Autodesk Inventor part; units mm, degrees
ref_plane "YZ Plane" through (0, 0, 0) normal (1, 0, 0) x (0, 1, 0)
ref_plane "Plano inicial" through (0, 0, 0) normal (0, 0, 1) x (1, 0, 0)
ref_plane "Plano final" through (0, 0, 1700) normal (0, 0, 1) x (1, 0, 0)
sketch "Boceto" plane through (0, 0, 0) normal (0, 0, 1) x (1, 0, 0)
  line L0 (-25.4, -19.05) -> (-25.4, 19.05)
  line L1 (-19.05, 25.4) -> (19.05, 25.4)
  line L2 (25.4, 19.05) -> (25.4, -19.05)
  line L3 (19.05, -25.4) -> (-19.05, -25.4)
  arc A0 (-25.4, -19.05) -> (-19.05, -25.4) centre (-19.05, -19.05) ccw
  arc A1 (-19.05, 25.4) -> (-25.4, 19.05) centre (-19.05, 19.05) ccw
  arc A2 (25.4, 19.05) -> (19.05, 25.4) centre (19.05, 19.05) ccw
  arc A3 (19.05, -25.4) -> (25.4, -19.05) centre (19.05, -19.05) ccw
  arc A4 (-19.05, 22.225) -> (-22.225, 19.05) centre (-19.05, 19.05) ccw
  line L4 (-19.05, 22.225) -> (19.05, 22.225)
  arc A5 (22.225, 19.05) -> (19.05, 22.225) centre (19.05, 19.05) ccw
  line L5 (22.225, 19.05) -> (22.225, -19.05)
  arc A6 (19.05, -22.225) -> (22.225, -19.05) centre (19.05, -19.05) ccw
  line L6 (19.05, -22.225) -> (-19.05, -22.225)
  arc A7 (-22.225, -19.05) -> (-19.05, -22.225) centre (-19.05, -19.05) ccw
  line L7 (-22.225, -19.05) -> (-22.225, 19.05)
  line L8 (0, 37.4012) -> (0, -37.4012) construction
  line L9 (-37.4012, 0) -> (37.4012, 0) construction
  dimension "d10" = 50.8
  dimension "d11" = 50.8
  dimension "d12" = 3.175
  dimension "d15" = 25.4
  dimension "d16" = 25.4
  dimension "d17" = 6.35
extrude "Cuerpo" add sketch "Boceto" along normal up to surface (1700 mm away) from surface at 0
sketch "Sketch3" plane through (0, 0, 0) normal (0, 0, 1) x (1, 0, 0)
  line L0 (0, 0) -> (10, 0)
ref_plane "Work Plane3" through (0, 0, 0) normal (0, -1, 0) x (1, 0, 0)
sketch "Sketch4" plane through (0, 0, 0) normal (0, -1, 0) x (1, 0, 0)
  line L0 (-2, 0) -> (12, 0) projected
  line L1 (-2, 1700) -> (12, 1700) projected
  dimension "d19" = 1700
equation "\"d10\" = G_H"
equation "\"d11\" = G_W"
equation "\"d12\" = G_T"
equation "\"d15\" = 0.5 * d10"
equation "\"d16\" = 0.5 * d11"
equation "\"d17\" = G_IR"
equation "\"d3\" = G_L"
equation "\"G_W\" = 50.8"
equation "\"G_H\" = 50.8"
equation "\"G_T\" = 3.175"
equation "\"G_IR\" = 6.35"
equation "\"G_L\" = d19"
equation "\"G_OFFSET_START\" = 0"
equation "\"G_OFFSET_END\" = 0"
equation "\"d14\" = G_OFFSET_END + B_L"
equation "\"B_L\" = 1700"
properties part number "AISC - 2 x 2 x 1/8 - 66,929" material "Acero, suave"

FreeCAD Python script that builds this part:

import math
import FreeCAD as App
import Part
import Sketcher
Q = App.Units.Quantity

doc = App.newDocument("Part")
body = doc.addObject("PartDesign::Body", "Body")

sketch1 = body.newObject("Sketcher::SketchObject", "Sketch")
sketch1.AttachmentSupport = (doc.getObject("XY_Plane"), [""])
sketch1.MapMode = "FlatFace"
sketch1.addGeometry([
    Part.LineSegment(App.Vector(-25.4, 19.1, 0), App.Vector(-25.4, -19.1, 0)),
    Part.ArcOfCircle(Part.Circle(App.Vector(-19.1, -19.1, 0), App.Vector(0, 0, 1), 6.3), math.radians(180), math.radians(270)),
    Part.LineSegment(App.Vector(-19.1, -25.4, 0), App.Vector(19.1, -25.4, 0)),
    Part.ArcOfCircle(Part.Circle(App.Vector(19.1, -19.1, 0), App.Vector(0, 0, 1), 6.3), math.radians(-90), math.radians(0)),
    Part.LineSegment(App.Vector(25.4, -19.1, 0), App.Vector(25.4, 19.1, 0)),
    Part.ArcOfCircle(Part.Circle(App.Vector(19.1, 19.1, 0), App.Vector(0, 0, 1), 6.3), math.radians(0), math.radians(90)),
    Part.LineSegment(App.Vector(19.1, 25.4, 0), App.Vector(-19.1, 25.4, 0)),
    Part.ArcOfCircle(Part.Circle(App.Vector(-19.1, 19.1, 0), App.Vector(0, 0, 1), 6.3), math.radians(90), math.radians(180)),
    Part.ArcOfCircle(Part.Circle(App.Vector(-19.1, 19.1, 0), App.Vector(0, 0, 1), 3.2), math.radians(90), math.radians(180)),
    Part.LineSegment(App.Vector(-19.1, 22.2, 0), App.Vector(19.1, 22.2, 0)),
    Part.ArcOfCircle(Part.Circle(App.Vector(19.1, 19.1, 0), App.Vector(0, 0, 1), 3.2), math.radians(0), math.radians(90)),
    Part.LineSegment(App.Vector(22.2, 19.1, 0), App.Vector(22.2, -19.1, 0)),
    Part.ArcOfCircle(Part.Circle(App.Vector(19.1, -19.1, 0), App.Vector(0, 0, 1), 3.2), math.radians(-90), math.radians(0)),
    Part.LineSegment(App.Vector(19.1, -22.2, 0), App.Vector(-19.1, -22.2, 0)),
    Part.ArcOfCircle(Part.Circle(App.Vector(-19.1, -19.1, 0), App.Vector(0, 0, 1), 3.2), math.radians(180), math.radians(270)),
    Part.LineSegment(App.Vector(-22.2, -19.1, 0), App.Vector(-22.2, 19.1, 0)),
], False)
sketch1.addConstraint([
    Sketcher.Constraint("Tangent", 0, 2, 1, 1),
    Sketcher.Constraint("Tangent", 1, 2, 2, 1),
    Sketcher.Constraint("Tangent", 2, 2, 3, 1),
    Sketcher.Constraint("Tangent", 3, 2, 4, 1),
    Sketcher.Constraint("Tangent", 4, 2, 5, 1),
    Sketcher.Constraint("Tangent", 5, 2, 6, 1),
    Sketcher.Constraint("Tangent", 6, 2, 7, 1),
    Sketcher.Constraint("Tangent", 7, 2, 0, 1),
    Sketcher.Constraint("Tangent", 8, 1, 9, 1),
    Sketcher.Constraint("Tangent", 9, 2, 10, 2),
    Sketcher.Constraint("Tangent", 10, 1, 11, 1),
    Sketcher.Constraint("Tangent", 11, 2, 12, 2),
    Sketcher.Constraint("Tangent", 12, 1, 13, 1),
    Sketcher.Constraint("Tangent", 13, 2, 14, 2),
    Sketcher.Constraint("Tangent", 14, 1, 15, 1),
    Sketcher.Constraint("Tangent", 15, 2, 8, 2),
    Sketcher.Constraint("Vertical", 0),
    Sketcher.Constraint("Horizontal", 2),
    Sketcher.Constraint("Vertical", 4),
    Sketcher.Constraint("Horizontal", 6),
    Sketcher.Constraint("Horizontal", 9),
    Sketcher.Constraint("Vertical", 11),
    Sketcher.Constraint("Horizontal", 13),
    Sketcher.Constraint("Vertical", 15),
    Sketcher.Constraint("Coincident", 8, 3, 7, 3),
    Sketcher.Constraint("Coincident", 10, 3, 5, 3),
    Sketcher.Constraint("Coincident", 12, 3, 3, 3),
    Sketcher.Constraint("Equal", 1, 3),
    Sketcher.Constraint("Equal", 3, 5),
    Sketcher.Constraint("Equal", 5, 7),
    Sketcher.Constraint("Equal", 12, 14),
    Sketcher.Constraint("Symmetric", 1, 3, 5, 3, -1, 1),
    Sketcher.Constraint("Equal", 13, 0),
    Sketcher.Constraint("Radius", 1, Q("0.25 in")),
    Sketcher.Constraint("DistanceX", 0, 2, -1, 1, Q("1 in")),
    Sketcher.Constraint("Radius", 8, Q("0.125 in")),
])
pad1 = body.newObject("PartDesign::Pad", "Pad")
pad1.Profile = sketch1
pad1.Length = 1700

doc.recompute()
